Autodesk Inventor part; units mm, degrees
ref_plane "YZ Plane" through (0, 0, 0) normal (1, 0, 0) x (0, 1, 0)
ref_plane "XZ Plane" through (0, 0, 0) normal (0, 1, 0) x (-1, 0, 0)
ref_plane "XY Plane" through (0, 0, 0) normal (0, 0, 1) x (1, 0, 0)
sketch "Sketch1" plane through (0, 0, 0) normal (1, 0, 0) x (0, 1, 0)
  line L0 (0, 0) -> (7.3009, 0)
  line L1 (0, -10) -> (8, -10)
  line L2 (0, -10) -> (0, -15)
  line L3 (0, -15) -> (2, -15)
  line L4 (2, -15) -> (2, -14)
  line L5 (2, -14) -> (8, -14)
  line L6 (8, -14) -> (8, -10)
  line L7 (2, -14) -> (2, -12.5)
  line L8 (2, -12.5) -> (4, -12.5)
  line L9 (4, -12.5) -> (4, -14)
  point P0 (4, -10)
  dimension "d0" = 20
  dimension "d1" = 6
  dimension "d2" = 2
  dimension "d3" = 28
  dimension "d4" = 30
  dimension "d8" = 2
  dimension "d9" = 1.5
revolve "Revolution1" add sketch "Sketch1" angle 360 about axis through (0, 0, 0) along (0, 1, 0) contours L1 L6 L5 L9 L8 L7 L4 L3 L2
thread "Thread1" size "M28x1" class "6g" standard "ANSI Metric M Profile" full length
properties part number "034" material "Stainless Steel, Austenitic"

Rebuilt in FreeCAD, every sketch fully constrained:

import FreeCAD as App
import Part
import Sketcher
Q = App.Units.Quantity


def add_polygon(sketch, points):
    """Adds a closed chain of lines whose ends are joined by coincident constraints."""
    first, n = sketch.GeometryCount, len(points)
    for a, b in zip(points, points[1:] + points[:1]):
        sketch.addGeometry(Part.LineSegment(App.Vector(*a, 0), App.Vector(*b, 0)), False)
    for i in range(n):
        sketch.addConstraint(Sketcher.Constraint("Coincident", first + i, 2, first + (i + 1) % n, 1))

doc = App.newDocument("Part")
body = doc.addObject("PartDesign::Body", "Body")

sketch1 = body.newObject("Sketcher::SketchObject", "Sketch")
sketch1.AttachmentSupport = (doc.getObject("YZ_Plane"), [""])
sketch1.MapMode = "FlatFace"
add_polygon(sketch1, [(8, -10), (0, -10), (0, -15), (2, -15), (2, -12.5), (4, -12.5), (4, -14), (8, -14)])
sketch1.addConstraint([
    Sketcher.Constraint("Horizontal", 0),
    Sketcher.Constraint("Vertical", 1),
    Sketcher.Constraint("Horizontal", 2),
    Sketcher.Constraint("Vertical", 3),
    Sketcher.Constraint("Horizontal", 4),
    Sketcher.Constraint("Vertical", 5),
    Sketcher.Constraint("Horizontal", 6),
    Sketcher.Constraint("Vertical", 7),
    Sketcher.Constraint("PointOnObject", 0, 2, -2),
    Sketcher.Constraint("Equal", 2, 4),
    Sketcher.Constraint("Equal", 6, 7),
    Sketcher.Constraint("DistanceX", 2, 1, 2, 2, Q("2 mm")),
    Sketcher.Constraint("DistanceY", 5, 2, 5, 1, Q("1.5 mm")),
    Sketcher.Constraint("DistanceX", 2, 2, 6, 2, Q("6 mm")),
    Sketcher.Constraint("DistanceY", 1, 2, 1, 1, Q("5 mm")),
    Sketcher.Constraint("DistanceY", 0, 2, -1, 1, Q("10 mm")),
])
revolution = body.newObject("PartDesign::Revolution", "Revolution")
revolution.Profile = sketch1
revolution.ReferenceAxis = (sketch1, ["H_Axis"])
revolution.Angle = 360

doc.recompute()
